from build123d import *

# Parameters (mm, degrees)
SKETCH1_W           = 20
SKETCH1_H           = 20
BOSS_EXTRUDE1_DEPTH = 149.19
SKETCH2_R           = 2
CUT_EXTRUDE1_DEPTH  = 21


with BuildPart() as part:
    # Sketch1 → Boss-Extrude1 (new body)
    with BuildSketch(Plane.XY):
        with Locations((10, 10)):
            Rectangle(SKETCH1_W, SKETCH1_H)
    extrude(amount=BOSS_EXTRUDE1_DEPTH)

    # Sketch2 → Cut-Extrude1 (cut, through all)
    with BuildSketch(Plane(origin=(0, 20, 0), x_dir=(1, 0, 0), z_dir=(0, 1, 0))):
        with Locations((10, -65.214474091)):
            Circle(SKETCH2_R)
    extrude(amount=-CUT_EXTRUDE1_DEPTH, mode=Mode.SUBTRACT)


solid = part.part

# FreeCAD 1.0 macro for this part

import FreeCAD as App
import Part
import Sketcher


def add_polygon(sketch, points):
    """Adds a closed chain of lines whose ends are joined by coincident constraints."""
    first, n = sketch.GeometryCount, len(points)
    for a, b in zip(points, points[1:] + points[:1]):
        sketch.addGeometry(Part.LineSegment(App.Vector(*a, 0), App.Vector(*b, 0)), False)
    for i in range(n):
        sketch.addConstraint(Sketcher.Constraint("Coincident", first + i, 2, first + (i + 1) % n, 1))

doc = App.newDocument("Part")
body = doc.addObject("PartDesign::Body", "Body")

sketch1 = body.newObject("Sketcher::SketchObject", "Sketch")
sketch1.AttachmentSupport = (doc.getObject("XY_Plane"), [""])
sketch1.MapMode = "FlatFace"
add_polygon(sketch1, [(0, 20), (0, 0), (20, 0), (20, 20)])
sketch1.addConstraint([
    Sketcher.Constraint("Vertical", 0),
    Sketcher.Constraint("Horizontal", 1),
    Sketcher.Constraint("Vertical", 2),
    Sketcher.Constraint("Horizontal", 3),
    Sketcher.Constraint("Coincident", 0, 2, -1, 1),
    Sketcher.Constraint("Equal", 3, 0),
    Sketcher.Constraint("DistanceX", 1, 1, 1, 2, 20.0),
])
pad1 = body.newObject("PartDesign::Pad", "Pad")
pad1.Profile = sketch1
pad1.Length = 149.19

sketch2 = body.newObject("Sketcher::SketchObject", "Sketch001")
sketch2.AttachmentSupport = (doc.getObject("XZ_Plane"), [""])
sketch2.MapMode = "FlatFace"
sketch2.AttachmentOffset = App.Placement(App.Vector(0, 0, -20), App.Rotation())
sketch2.addGeometry(Part.Circle(App.Vector(10, 65.214474, 0), App.Vector(0, 0, 1), 2), False)
sketch2.addConstraint([
    Sketcher.Constraint("Diameter", 0, 4.0),
    Sketcher.Constraint("DistanceX", -1, 1, 0, 3, 10.0),
    Sketcher.Constraint("DistanceY", -1, 1, 0, 3, 65.214474),
])
pocket1 = body.newObject("PartDesign::Pocket", "Pocket")
pocket1.Profile = sketch2
pocket1.Type = "ThroughAll"
pocket1.Reversed = True

doc.recompute()
